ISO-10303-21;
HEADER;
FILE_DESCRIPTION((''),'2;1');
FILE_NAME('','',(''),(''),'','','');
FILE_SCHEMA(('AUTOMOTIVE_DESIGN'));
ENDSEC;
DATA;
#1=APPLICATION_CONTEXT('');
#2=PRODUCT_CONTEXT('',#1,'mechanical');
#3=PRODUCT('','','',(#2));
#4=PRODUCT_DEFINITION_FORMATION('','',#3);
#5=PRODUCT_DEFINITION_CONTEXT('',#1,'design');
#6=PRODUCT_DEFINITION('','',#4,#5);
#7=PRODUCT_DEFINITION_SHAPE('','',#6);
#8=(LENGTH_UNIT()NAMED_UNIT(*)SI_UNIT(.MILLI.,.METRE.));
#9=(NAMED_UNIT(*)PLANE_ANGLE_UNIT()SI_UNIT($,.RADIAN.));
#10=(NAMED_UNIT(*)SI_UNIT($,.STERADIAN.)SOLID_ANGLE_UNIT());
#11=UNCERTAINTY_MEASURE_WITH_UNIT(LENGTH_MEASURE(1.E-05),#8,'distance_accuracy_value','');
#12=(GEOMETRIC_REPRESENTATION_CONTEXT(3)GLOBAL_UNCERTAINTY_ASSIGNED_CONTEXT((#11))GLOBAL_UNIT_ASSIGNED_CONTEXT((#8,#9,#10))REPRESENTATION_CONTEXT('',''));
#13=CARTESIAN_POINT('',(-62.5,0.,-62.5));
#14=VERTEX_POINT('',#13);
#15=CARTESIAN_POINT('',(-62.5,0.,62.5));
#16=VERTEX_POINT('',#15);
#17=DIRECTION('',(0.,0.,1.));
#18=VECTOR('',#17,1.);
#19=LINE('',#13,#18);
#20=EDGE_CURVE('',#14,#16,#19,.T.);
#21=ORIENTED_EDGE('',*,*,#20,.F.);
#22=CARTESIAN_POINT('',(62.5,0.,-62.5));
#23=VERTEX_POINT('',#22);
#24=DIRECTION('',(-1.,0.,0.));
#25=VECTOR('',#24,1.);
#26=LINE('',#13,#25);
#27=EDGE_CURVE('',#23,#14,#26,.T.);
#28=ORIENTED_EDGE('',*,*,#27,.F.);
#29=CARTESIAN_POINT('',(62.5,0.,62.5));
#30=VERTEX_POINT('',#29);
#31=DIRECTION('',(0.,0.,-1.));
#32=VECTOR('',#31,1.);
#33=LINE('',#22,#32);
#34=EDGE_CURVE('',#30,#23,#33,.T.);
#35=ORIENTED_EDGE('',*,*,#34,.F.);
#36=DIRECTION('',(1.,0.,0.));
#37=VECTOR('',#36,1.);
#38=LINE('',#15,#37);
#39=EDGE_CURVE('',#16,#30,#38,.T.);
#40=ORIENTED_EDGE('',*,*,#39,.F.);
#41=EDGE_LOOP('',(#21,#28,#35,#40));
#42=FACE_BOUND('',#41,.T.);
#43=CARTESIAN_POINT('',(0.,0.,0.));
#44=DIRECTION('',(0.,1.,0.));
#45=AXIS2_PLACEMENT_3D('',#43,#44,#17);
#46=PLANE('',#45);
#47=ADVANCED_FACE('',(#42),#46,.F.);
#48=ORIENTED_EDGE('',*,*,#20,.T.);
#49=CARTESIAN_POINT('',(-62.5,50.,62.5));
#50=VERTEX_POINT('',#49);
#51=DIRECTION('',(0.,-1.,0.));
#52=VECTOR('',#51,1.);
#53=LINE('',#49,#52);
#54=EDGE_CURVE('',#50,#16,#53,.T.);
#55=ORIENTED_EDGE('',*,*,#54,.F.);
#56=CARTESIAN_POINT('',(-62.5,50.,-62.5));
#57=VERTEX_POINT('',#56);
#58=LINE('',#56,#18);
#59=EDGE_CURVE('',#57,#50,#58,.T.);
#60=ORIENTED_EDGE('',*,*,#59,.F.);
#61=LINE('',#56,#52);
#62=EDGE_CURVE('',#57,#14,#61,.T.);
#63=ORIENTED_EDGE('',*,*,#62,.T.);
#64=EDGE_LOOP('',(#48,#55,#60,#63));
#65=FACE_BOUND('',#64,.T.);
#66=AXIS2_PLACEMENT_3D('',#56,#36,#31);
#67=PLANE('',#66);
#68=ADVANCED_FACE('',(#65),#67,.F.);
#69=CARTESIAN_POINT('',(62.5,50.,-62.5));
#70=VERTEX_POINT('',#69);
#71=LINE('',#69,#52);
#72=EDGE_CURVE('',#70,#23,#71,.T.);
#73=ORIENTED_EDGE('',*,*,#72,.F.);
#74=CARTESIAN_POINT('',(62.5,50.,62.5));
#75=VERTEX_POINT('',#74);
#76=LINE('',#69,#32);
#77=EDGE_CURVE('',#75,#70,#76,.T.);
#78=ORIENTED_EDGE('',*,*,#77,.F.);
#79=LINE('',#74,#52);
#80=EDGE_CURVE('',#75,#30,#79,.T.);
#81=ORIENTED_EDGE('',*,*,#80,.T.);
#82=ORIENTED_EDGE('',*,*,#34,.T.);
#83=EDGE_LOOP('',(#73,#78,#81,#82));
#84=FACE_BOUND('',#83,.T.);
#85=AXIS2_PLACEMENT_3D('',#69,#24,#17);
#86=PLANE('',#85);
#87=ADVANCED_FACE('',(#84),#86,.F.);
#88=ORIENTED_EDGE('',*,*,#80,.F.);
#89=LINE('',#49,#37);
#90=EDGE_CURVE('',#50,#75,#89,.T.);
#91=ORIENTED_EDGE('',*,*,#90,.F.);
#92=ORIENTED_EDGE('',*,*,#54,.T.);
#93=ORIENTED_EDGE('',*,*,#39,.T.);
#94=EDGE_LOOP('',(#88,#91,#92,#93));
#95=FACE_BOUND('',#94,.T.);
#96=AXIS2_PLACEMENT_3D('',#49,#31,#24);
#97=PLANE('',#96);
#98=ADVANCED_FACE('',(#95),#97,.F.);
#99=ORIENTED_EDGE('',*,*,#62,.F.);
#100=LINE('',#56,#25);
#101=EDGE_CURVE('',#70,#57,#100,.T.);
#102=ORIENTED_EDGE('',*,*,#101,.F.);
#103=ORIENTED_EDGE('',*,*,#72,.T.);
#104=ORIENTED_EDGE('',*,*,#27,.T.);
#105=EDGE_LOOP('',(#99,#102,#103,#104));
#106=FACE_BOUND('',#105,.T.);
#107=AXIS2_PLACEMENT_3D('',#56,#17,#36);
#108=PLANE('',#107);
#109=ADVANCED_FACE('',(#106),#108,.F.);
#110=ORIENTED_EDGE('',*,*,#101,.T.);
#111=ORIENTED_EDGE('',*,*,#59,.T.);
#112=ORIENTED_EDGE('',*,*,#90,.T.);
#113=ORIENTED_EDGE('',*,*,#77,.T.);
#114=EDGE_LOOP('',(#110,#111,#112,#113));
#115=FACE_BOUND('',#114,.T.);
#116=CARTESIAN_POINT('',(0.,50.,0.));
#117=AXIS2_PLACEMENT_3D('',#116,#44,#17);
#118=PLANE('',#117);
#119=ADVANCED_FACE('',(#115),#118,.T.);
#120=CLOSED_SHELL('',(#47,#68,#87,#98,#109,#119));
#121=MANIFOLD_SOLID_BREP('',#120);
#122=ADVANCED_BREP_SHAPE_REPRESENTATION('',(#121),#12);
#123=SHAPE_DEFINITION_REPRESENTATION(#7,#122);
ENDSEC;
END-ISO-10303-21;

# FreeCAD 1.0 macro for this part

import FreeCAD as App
import Part
import Sketcher

V = App.Vector


def add_polygon(sketch, points):
    """Adds a closed chain of lines whose ends are joined by coincident constraints."""
    first, n = sketch.GeometryCount, len(points)
    for a, b in zip(points, points[1:] + points[:1]):
        sketch.addGeometry(Part.LineSegment(App.Vector(*a, 0), App.Vector(*b, 0)), False)
    for i in range(n):
        sketch.addConstraint(Sketcher.Constraint("Coincident", first + i, 2, first + (i + 1) % n, 1))

doc = App.newDocument("Part")
body = doc.addObject("PartDesign::Body", "Body")

sketch1 = body.newObject("Sketcher::SketchObject", "Sketch")
sketch1.AttachmentSupport = (doc.getObject("XZ_Plane"), [""])
sketch1.MapMode = "FlatFace"
add_polygon(sketch1, [(-62, -62), (-62, 62), (62, 62), (62, -62)])
sketch1.addConstraint(Sketcher.Constraint("Vertical", 0))
sketch1.addConstraint(Sketcher.Constraint("Horizontal", 1))
sketch1.addConstraint(Sketcher.Constraint("Vertical", 2))
sketch1.addConstraint(Sketcher.Constraint("Horizontal", 3))
sketch1.addConstraint(Sketcher.Constraint("Symmetric", 0, 2, 2, 2, -1, 1))
sketch1.addConstraint(Sketcher.Constraint("Equal", 3, 0))
sketch1.addConstraint(Sketcher.Constraint("DistanceX", 1, 1, 1, 2, 125.0))
pad1 = body.newObject("PartDesign::Pad", "Pad")
pad1.Profile = sketch1
pad1.Length = 50
pad1.Reversed = True

doc.recompute()
